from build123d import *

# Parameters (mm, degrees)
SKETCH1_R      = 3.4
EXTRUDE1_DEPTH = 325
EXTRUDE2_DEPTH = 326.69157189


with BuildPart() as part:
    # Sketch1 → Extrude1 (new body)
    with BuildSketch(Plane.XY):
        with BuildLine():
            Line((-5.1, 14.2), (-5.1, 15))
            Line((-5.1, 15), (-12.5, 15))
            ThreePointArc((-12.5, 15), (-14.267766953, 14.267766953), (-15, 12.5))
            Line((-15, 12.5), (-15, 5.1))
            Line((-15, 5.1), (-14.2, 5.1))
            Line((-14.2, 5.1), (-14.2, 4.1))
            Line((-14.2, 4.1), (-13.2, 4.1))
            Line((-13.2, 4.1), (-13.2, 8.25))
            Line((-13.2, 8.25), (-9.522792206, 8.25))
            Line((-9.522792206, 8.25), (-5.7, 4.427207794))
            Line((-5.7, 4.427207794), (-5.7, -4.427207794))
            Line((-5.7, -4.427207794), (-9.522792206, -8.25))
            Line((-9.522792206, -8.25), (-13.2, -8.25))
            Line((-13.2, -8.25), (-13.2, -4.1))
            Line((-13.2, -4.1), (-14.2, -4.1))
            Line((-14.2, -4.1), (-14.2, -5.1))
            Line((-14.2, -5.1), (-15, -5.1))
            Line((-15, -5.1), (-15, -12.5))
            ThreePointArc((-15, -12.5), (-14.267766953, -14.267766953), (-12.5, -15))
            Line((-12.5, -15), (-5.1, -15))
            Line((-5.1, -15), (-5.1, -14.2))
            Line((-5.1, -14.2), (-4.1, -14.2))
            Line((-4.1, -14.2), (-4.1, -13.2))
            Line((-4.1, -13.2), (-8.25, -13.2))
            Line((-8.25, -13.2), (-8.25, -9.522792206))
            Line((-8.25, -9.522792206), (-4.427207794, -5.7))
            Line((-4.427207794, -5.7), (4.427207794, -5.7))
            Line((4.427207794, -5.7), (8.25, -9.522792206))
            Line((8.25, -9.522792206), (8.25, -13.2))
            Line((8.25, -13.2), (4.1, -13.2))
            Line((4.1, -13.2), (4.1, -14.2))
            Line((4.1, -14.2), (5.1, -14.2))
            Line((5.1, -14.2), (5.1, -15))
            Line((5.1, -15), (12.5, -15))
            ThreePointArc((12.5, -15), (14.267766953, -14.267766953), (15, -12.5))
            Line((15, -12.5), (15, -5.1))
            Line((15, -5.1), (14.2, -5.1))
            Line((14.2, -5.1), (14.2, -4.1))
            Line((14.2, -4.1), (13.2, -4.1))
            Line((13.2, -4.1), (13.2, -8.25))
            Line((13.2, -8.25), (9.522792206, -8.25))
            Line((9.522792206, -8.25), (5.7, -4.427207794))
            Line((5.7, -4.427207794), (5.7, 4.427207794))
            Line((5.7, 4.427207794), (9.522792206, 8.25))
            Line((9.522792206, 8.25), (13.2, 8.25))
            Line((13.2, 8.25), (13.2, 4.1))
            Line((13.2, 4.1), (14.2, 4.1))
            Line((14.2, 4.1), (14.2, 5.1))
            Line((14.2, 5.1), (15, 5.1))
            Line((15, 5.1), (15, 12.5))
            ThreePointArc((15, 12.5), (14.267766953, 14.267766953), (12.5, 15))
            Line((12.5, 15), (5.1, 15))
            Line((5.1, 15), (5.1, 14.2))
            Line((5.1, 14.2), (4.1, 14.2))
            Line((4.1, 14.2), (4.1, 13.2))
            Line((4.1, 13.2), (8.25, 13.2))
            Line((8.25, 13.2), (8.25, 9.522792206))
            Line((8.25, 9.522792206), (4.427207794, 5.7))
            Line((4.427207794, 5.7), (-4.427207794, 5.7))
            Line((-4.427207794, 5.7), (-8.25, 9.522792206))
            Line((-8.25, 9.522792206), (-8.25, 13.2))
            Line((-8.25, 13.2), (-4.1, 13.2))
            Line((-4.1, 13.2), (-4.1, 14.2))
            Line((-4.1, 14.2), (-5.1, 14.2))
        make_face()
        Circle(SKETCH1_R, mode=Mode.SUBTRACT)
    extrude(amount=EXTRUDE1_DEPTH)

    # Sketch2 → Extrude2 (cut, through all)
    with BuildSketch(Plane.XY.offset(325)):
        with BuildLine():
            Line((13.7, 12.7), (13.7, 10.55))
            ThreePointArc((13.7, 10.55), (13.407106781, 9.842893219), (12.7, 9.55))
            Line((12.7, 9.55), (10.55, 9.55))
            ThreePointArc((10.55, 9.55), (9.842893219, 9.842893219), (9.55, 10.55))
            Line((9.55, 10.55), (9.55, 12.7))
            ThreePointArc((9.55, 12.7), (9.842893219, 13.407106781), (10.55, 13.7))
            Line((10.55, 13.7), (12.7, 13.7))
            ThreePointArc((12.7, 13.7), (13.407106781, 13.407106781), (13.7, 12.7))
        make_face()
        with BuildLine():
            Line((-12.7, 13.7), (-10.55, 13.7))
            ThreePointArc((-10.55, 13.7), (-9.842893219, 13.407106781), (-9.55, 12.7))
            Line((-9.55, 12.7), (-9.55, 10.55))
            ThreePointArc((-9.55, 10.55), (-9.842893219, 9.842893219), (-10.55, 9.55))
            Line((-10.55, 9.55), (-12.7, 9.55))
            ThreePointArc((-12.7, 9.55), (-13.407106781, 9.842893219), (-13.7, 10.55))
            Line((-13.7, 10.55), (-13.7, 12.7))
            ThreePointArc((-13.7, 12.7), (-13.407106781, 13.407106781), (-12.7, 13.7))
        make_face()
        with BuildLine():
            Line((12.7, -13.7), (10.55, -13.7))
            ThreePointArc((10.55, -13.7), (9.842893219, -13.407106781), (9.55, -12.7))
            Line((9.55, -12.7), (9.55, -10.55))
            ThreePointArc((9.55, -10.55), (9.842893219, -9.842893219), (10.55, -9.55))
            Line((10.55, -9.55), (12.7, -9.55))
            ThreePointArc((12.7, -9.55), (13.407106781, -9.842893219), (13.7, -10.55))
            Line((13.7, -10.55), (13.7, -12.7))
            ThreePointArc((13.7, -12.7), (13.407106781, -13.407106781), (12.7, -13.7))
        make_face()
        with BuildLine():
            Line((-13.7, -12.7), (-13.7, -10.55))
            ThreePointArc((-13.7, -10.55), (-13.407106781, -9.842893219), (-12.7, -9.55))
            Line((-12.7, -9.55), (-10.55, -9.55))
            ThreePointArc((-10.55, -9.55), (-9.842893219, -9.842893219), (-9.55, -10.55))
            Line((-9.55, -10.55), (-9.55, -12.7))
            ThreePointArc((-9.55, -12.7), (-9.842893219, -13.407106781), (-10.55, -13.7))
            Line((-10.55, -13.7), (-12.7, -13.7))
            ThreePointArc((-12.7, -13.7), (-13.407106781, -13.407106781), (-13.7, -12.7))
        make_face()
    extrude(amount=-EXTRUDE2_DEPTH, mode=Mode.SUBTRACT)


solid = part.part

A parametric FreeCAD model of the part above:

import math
import FreeCAD as App
import Part
import Sketcher
from FreeCAD import Vector

doc = App.newDocument("Part")
body = doc.addObject("PartDesign::Body", "Body")

# Sketch on XY plane
sketch1 = body.newObject("Sketcher::SketchObject", "Sketch")
sketch1.AttachmentSupport = (doc.getObject("XY_Plane"), [""])
sketch1.MapMode = "FlatFace"
sketch1.addGeometry(Part.LineSegment(Vector(-5.1, 14.2, 0), Vector(-5.1, 15, 0)), False)
sketch1.addGeometry(Part.LineSegment(Vector(-5.1, 15, 0), Vector(-12.5, 15, 0)), False)
sketch1.addGeometry(Part.ArcOfCircle(Part.Circle(Vector(-12.5, 12.5, 0), Vector(0, 0, 1), 2.5), math.radians(90), math.radians(180)), False)
sketch1.addGeometry(Part.LineSegment(Vector(-15, 12.5, 0), Vector(-15, 5.1, 0)), False)
sketch1.addGeometry(Part.LineSegment(Vector(-15, 5.1, 0), Vector(-14.2, 5.1, 0)), False)
sketch1.addGeometry(Part.LineSegment(Vector(-14.2, 5.1, 0), Vector(-14.2, 4.1, 0)), False)
sketch1.addGeometry(Part.LineSegment(Vector(-14.2, 4.1, 0), Vector(-13.2, 4.1, 0)), False)
sketch1.addGeometry(Part.LineSegment(Vector(-13.2, 4.1, 0), Vector(-13.2, 8.25, 0)), False)
sketch1.addGeometry(Part.LineSegment(Vector(-13.2, 8.25, 0), Vector(-9.522792, 8.25, 0)), False)
sketch1.addGeometry(Part.LineSegment(Vector(-9.522792, 8.25, 0), Vector(-5.7, 4.427208, 0)), False)
sketch1.addGeometry(Part.LineSegment(Vector(-5.7, 4.427208, 0), Vector(-5.7, -4.427208, 0)), False)
sketch1.addGeometry(Part.LineSegment(Vector(-5.7, -4.427208, 0), Vector(-9.522792, -8.25, 0)), False)
sketch1.addGeometry(Part.LineSegment(Vector(-9.522792, -8.25, 0), Vector(-13.2, -8.25, 0)), False)
sketch1.addGeometry(Part.LineSegment(Vector(-13.2, -8.25, 0), Vector(-13.2, -4.1, 0)), False)
sketch1.addGeometry(Part.LineSegment(Vector(-13.2, -4.1, 0), Vector(-14.2, -4.1, 0)), False)
sketch1.addGeometry(Part.LineSegment(Vector(-14.2, -4.1, 0), Vector(-14.2, -5.1, 0)), False)
sketch1.addGeometry(Part.LineSegment(Vector(-14.2, -5.1, 0), Vector(-15, -5.1, 0)), False)
sketch1.addGeometry(Part.LineSegment(Vector(-15, -5.1, 0), Vector(-15, -12.5, 0)), False)
sketch1.addGeometry(Part.ArcOfCircle(Part.Circle(Vector(-12.5, -12.5, 0), Vector(0, 0, 1), 2.5), math.radians(180), math.radians(270)), False)
sketch1.addGeometry(Part.LineSegment(Vector(-12.5, -15, 0), Vector(-5.1, -15, 0)), False)
sketch1.addGeometry(Part.LineSegment(Vector(-5.1, -15, 0), Vector(-5.1, -14.2, 0)), False)
sketch1.addGeometry(Part.LineSegment(Vector(-5.1, -14.2, 0), Vector(-4.1, -14.2, 0)), False)
sketch1.addGeometry(Part.LineSegment(Vector(-4.1, -14.2, 0), Vector(-4.1, -13.2, 0)), False)
sketch1.addGeometry(Part.LineSegment(Vector(-4.1, -13.2, 0), Vector(-8.25, -13.2, 0)), False)
sketch1.addGeometry(Part.LineSegment(Vector(-8.25, -13.2, 0), Vector(-8.25, -9.522792, 0)), False)
sketch1.addGeometry(Part.LineSegment(Vector(-8.25, -9.522792, 0), Vector(-4.427208, -5.7, 0)), False)
sketch1.addGeometry(Part.LineSegment(Vector(-4.427208, -5.7, 0), Vector(4.427208, -5.7, 0)), False)
sketch1.addGeometry(Part.LineSegment(Vector(4.427208, -5.7, 0), Vector(8.25, -9.522792, 0)), False)
sketch1.addGeometry(Part.LineSegment(Vector(8.25, -9.522792, 0), Vector(8.25, -13.2, 0)), False)
sketch1.addGeometry(Part.LineSegment(Vector(8.25, -13.2, 0), Vector(4.1, -13.2, 0)), False)
sketch1.addGeometry(Part.LineSegment(Vector(4.1, -13.2, 0), Vector(4.1, -14.2, 0)), False)
sketch1.addGeometry(Part.LineSegment(Vector(4.1, -14.2, 0), Vector(5.1, -14.2, 0)), False)
sketch1.addGeometry(Part.LineSegment(Vector(5.1, -14.2, 0), Vector(5.1, -15, 0)), False)
sketch1.addGeometry(Part.LineSegment(Vector(5.1, -15, 0), Vector(12.5, -15, 0)), False)
sketch1.addGeometry(Part.ArcOfCircle(Part.Circle(Vector(12.5, -12.5, 0), Vector(0, 0, 1), 2.5), math.radians(-90), math.radians(0)), False)
sketch1.addGeometry(Part.LineSegment(Vector(15, -12.5, 0), Vector(15, -5.1, 0)), False)
sketch1.addGeometry(Part.LineSegment(Vector(15, -5.1, 0), Vector(14.2, -5.1, 0)), False)
sketch1.addGeometry(Part.LineSegment(Vector(14.2, -5.1, 0), Vector(14.2, -4.1, 0)), False)
sketch1.addGeometry(Part.LineSegment(Vector(14.2, -4.1, 0), Vector(13.2, -4.1, 0)), False)
sketch1.addGeometry(Part.LineSegment(Vector(13.2, -4.1, 0), Vector(13.2, -8.25, 0)), False)
sketch1.addGeometry(Part.LineSegment(Vector(13.2, -8.25, 0), Vector(9.522792, -8.25, 0)), False)
sketch1.addGeometry(Part.LineSegment(Vector(9.522792, -8.25, 0), Vector(5.7, -4.427208, 0)), False)
sketch1.addGeometry(Part.LineSegment(Vector(5.7, -4.427208, 0), Vector(5.7, 4.427208, 0)), False)
sketch1.addGeometry(Part.LineSegment(Vector(5.7, 4.427208, 0), Vector(9.522792, 8.25, 0)), False)
sketch1.addGeometry(Part.LineSegment(Vector(9.522792, 8.25, 0), Vector(13.2, 8.25, 0)), False)
sketch1.addGeometry(Part.LineSegment(Vector(13.2, 8.25, 0), Vector(13.2, 4.1, 0)), False)
sketch1.addGeometry(Part.LineSegment(Vector(13.2, 4.1, 0), Vector(14.2, 4.1, 0)), False)
sketch1.addGeometry(Part.LineSegment(Vector(14.2, 4.1, 0), Vector(14.2, 5.1, 0)), False)
sketch1.addGeometry(Part.LineSegment(Vector(14.2, 5.1, 0), Vector(15, 5.1, 0)), False)
sketch1.addGeometry(Part.LineSegment(Vector(15, 5.1, 0), Vector(15, 12.5, 0)), False)
sketch1.addGeometry(Part.ArcOfCircle(Part.Circle(Vector(12.5, 12.5, 0), Vector(0, 0, 1), 2.5), math.radians(0), math.radians(90)), False)
sketch1.addGeometry(Part.LineSegment(Vector(12.5, 15, 0), Vector(5.1, 15, 0)), False)
sketch1.addGeometry(Part.LineSegment(Vector(5.1, 15, 0), Vector(5.1, 14.2, 0)), False)
sketch1.addGeometry(Part.LineSegment(Vector(5.1, 14.2, 0), Vector(4.1, 14.2, 0)), False)
sketch1.addGeometry(Part.LineSegment(Vector(4.1, 14.2, 0), Vector(4.1, 13.2, 0)), False)
sketch1.addGeometry(Part.LineSegment(Vector(4.1, 13.2, 0), Vector(8.25, 13.2, 0)), False)
sketch1.addGeometry(Part.LineSegment(Vector(8.25, 13.2, 0), Vector(8.25, 9.522792, 0)), False)
sketch1.addGeometry(Part.LineSegment(Vector(8.25, 9.522792, 0), Vector(4.427208, 5.7, 0)), False)
sketch1.addGeometry(Part.LineSegment(Vector(4.427208, 5.7, 0), Vector(-4.427208, 5.7, 0)), False)
sketch1.addGeometry(Part.LineSegment(Vector(-4.427208, 5.7, 0), Vector(-8.25, 9.522792, 0)), False)
sketch1.addGeometry(Part.LineSegment(Vector(-8.25, 9.522792, 0), Vector(-8.25, 13.2, 0)), False)
sketch1.addGeometry(Part.LineSegment(Vector(-8.25, 13.2, 0), Vector(-4.1, 13.2, 0)), False)
sketch1.addGeometry(Part.LineSegment(Vector(-4.1, 13.2, 0), Vector(-4.1, 14.2, 0)), False)
sketch1.addGeometry(Part.LineSegment(Vector(-4.1, 14.2, 0), Vector(-5.1, 14.2, 0)), False)
sketch1.addGeometry(Part.Circle(Vector(0, 0, 0), Vector(0, 0, 1), 3.4), False)
sketch1.addConstraint(Sketcher.Constraint("Coincident", 0, 2, 1, 1))
sketch1.addConstraint(Sketcher.Constraint("Tangent", 1, 2, 2, 1))
sketch1.addConstraint(Sketcher.Constraint("Tangent", 2, 2, 3, 1))
sketch1.addConstraint(Sketcher.Constraint("Coincident", 3, 2, 4, 1))
sketch1.addConstraint(Sketcher.Constraint("Coincident", 4, 2, 5, 1))
sketch1.addConstraint(Sketcher.Constraint("Coincident", 5, 2, 6, 1))
sketch1.addConstraint(Sketcher.Constraint("Coincident", 6, 2, 7, 1))
sketch1.addConstraint(Sketcher.Constraint("Coincident", 7, 2, 8, 1))
sketch1.addConstraint(Sketcher.Constraint("Coincident", 8, 2, 9, 1))
sketch1.addConstraint(Sketcher.Constraint("Coincident", 9, 2, 10, 1))
sketch1.addConstraint(Sketcher.Constraint("Coincident", 10, 2, 11, 1))
sketch1.addConstraint(Sketcher.Constraint("Coincident", 11, 2, 12, 1))
sketch1.addConstraint(Sketcher.Constraint("Coincident", 12, 2, 13, 1))
sketch1.addConstraint(Sketcher.Constraint("Coincident", 13, 2, 14, 1))
sketch1.addConstraint(Sketcher.Constraint("Coincident", 14, 2, 15, 1))
sketch1.addConstraint(Sketcher.Constraint("Coincident", 15, 2, 16, 1))
sketch1.addConstraint(Sketcher.Constraint("Coincident", 16, 2, 17, 1))
sketch1.addConstraint(Sketcher.Constraint("Tangent", 17, 2, 18, 1))
sketch1.addConstraint(Sketcher.Constraint("Tangent", 18, 2, 19, 1))
sketch1.addConstraint(Sketcher.Constraint("Coincident", 19, 2, 20, 1))
sketch1.addConstraint(Sketcher.Constraint("Coincident", 20, 2, 21, 1))
sketch1.addConstraint(Sketcher.Constraint("Coincident", 21, 2, 22, 1))
sketch1.addConstraint(Sketcher.Constraint("Coincident", 22, 2, 23, 1))
sketch1.addConstraint(Sketcher.Constraint("Coincident", 23, 2, 24, 1))
sketch1.addConstraint(Sketcher.Constraint("Coincident", 24, 2, 25, 1))
sketch1.addConstraint(Sketcher.Constraint("Coincident", 25, 2, 26, 1))
sketch1.addConstraint(Sketcher.Constraint("Coincident", 26, 2, 27, 1))
sketch1.addConstraint(Sketcher.Constraint("Coincident", 27, 2, 28, 1))
sketch1.addConstraint(Sketcher.Constraint("Coincident", 28, 2, 29, 1))
sketch1.addConstraint(Sketcher.Constraint("Coincident", 29, 2, 30, 1))
sketch1.addConstraint(Sketcher.Constraint("Coincident", 30, 2, 31, 1))
sketch1.addConstraint(Sketcher.Constraint("Coincident", 31, 2, 32, 1))
sketch1.addConstraint(Sketcher.Constraint("Coincident", 32, 2, 33, 1))
sketch1.addConstraint(Sketcher.Constraint("Tangent", 33, 2, 34, 1))
sketch1.addConstraint(Sketcher.Constraint("Tangent", 34, 2, 35, 1))
sketch1.addConstraint(Sketcher.Constraint("Coincident", 35, 2, 36, 1))
sketch1.addConstraint(Sketcher.Constraint("Coincident", 36, 2, 37, 1))
sketch1.addConstraint(Sketcher.Constraint("Coincident", 37, 2, 38, 1))
sketch1.addConstraint(Sketcher.Constraint("Coincident", 38, 2, 39, 1))
sketch1.addConstraint(Sketcher.Constraint("Coincident", 39, 2, 40, 1))
sketch1.addConstraint(Sketcher.Constraint("Coincident", 40, 2, 41, 1))
sketch1.addConstraint(Sketcher.Constraint("Coincident", 41, 2, 42, 1))
sketch1.addConstraint(Sketcher.Constraint("Coincident", 42, 2, 43, 1))
sketch1.addConstraint(Sketcher.Constraint("Coincident", 43, 2, 44, 1))
sketch1.addConstraint(Sketcher.Constraint("Coincident", 44, 2, 45, 1))
sketch1.addConstraint(Sketcher.Constraint("Coincident", 45, 2, 46, 1))
sketch1.addConstraint(Sketcher.Constraint("Coincident", 46, 2, 47, 1))
sketch1.addConstraint(Sketcher.Constraint("Coincident", 47, 2, 48, 1))
sketch1.addConstraint(Sketcher.Constraint("Coincident", 48, 2, 49, 1))
sketch1.addConstraint(Sketcher.Constraint("Tangent", 49, 2, 50, 1))
sketch1.addConstraint(Sketcher.Constraint("Tangent", 50, 2, 51, 1))
sketch1.addConstraint(Sketcher.Constraint("Coincident", 51, 2, 52, 1))
sketch1.addConstraint(Sketcher.Constraint("Coincident", 52, 2, 53, 1))
sketch1.addConstraint(Sketcher.Constraint("Coincident", 53, 2, 54, 1))
sketch1.addConstraint(Sketcher.Constraint("Coincident", 54, 2, 55, 1))
sketch1.addConstraint(Sketcher.Constraint("Coincident", 55, 2, 56, 1))
sketch1.addConstraint(Sketcher.Constraint("Coincident", 56, 2, 57, 1))
sketch1.addConstraint(Sketcher.Constraint("Coincident", 57, 2, 58, 1))
sketch1.addConstraint(Sketcher.Constraint("Coincident", 58, 2, 59, 1))
sketch1.addConstraint(Sketcher.Constraint("Coincident", 59, 2, 60, 1))
sketch1.addConstraint(Sketcher.Constraint("Coincident", 60, 2, 61, 1))
sketch1.addConstraint(Sketcher.Constraint("Coincident", 61, 2, 62, 1))
sketch1.addConstraint(Sketcher.Constraint("Coincident", 62, 2, 63, 1))
sketch1.addConstraint(Sketcher.Constraint("Coincident", 63, 2, 0, 1))
sketch1.addConstraint(Sketcher.Constraint("Vertical", 0))
sketch1.addConstraint(Sketcher.Constraint("Horizontal", 1))
sketch1.addConstraint(Sketcher.Constraint("Vertical", 3))
sketch1.addConstraint(Sketcher.Constraint("Horizontal", 4))
sketch1.addConstraint(Sketcher.Constraint("Vertical", 5))
sketch1.addConstraint(Sketcher.Constraint("Horizontal", 6))
sketch1.addConstraint(Sketcher.Constraint("Vertical", 7))
sketch1.addConstraint(Sketcher.Constraint("Horizontal", 8))
sketch1.addConstraint(Sketcher.Constraint("Vertical", 10))
sketch1.addConstraint(Sketcher.Constraint("Horizontal", 12))
sketch1.addConstraint(Sketcher.Constraint("Vertical", 13))
sketch1.addConstraint(Sketcher.Constraint("Horizontal", 14))
sketch1.addConstraint(Sketcher.Constraint("Vertical", 15))
sketch1.addConstraint(Sketcher.Constraint("Horizontal", 16))
sketch1.addConstraint(Sketcher.Constraint("Vertical", 17))
sketch1.addConstraint(Sketcher.Constraint("Horizontal", 19))
sketch1.addConstraint(Sketcher.Constraint("Vertical", 20))
sketch1.addConstraint(Sketcher.Constraint("Horizontal", 21))
sketch1.addConstraint(Sketcher.Constraint("Vertical", 22))
sketch1.addConstraint(Sketcher.Constraint("Horizontal", 23))
sketch1.addConstraint(Sketcher.Constraint("Vertical", 24))
sketch1.addConstraint(Sketcher.Constraint("Horizontal", 26))
sketch1.addConstraint(Sketcher.Constraint("Vertical", 28))
sketch1.addConstraint(Sketcher.Constraint("Horizontal", 29))
sketch1.addConstraint(Sketcher.Constraint("Vertical", 30))
sketch1.addConstraint(Sketcher.Constraint("Horizontal", 31))
sketch1.addConstraint(Sketcher.Constraint("Vertical", 32))
sketch1.addConstraint(Sketcher.Constraint("Horizontal", 33))
sketch1.addConstraint(Sketcher.Constraint("Vertical", 35))
sketch1.addConstraint(Sketcher.Constraint("Horizontal", 36))
sketch1.addConstraint(Sketcher.Constraint("Vertical", 37))
sketch1.addConstraint(Sketcher.Constraint("Horizontal", 38))
sketch1.addConstraint(Sketcher.Constraint("Vertical", 39))
sketch1.addConstraint(Sketcher.Constraint("Horizontal", 40))
sketch1.addConstraint(Sketcher.Constraint("Vertical", 42))
sketch1.addConstraint(Sketcher.Constraint("Horizontal", 44))
sketch1.addConstraint(Sketcher.Constraint("Vertical", 45))
sketch1.addConstraint(Sketcher.Constraint("Horizontal", 46))
sketch1.addConstraint(Sketcher.Constraint("Vertical", 47))
sketch1.addConstraint(Sketcher.Constraint("Horizontal", 48))
sketch1.addConstraint(Sketcher.Constraint("Vertical", 49))
sketch1.addConstraint(Sketcher.Constraint("Horizontal", 51))
sketch1.addConstraint(Sketcher.Constraint("Vertical", 52))
sketch1.addConstraint(Sketcher.Constraint("Horizontal", 53))
sketch1.addConstraint(Sketcher.Constraint("Vertical", 54))
sketch1.addConstraint(Sketcher.Constraint("Horizontal", 55))
sketch1.addConstraint(Sketcher.Constraint("Vertical", 56))
sketch1.addConstraint(Sketcher.Constraint("Horizontal", 58))
sketch1.addConstraint(Sketcher.Constraint("Vertical", 60))
sketch1.addConstraint(Sketcher.Constraint("Horizontal", 61))
sketch1.addConstraint(Sketcher.Constraint("Vertical", 62))
sketch1.addConstraint(Sketcher.Constraint("Horizontal", 63))
sketch1.addConstraint(Sketcher.Constraint("Coincident", 64, 3, -1, 1))
sketch1.addConstraint(Sketcher.Constraint("Equal", 2, 18))
sketch1.addConstraint(Sketcher.Constraint("Equal", 18, 34))
sketch1.addConstraint(Sketcher.Constraint("Equal", 34, 50))
sketch1.addConstraint(Sketcher.Constraint("Symmetric", 2, 3, 34, 3, -1, 1))
sketch1.addConstraint(Sketcher.Constraint("Symmetric", 18, 3, 50, 3, -1, 1))
sketch1.addConstraint(Sketcher.Constraint("Symmetric", 4, 2, 36, 2, -1, 1))
sketch1.addConstraint(Sketcher.Constraint("Symmetric", 6, 2, 38, 2, -1, 1))
sketch1.addConstraint(Sketcher.Constraint("Symmetric", 8, 2, 40, 2, -1, 1))
sketch1.addConstraint(Sketcher.Constraint("Symmetric", 9, 2, 41, 2, -1, 1))
sketch1.addConstraint(Sketcher.Constraint("Symmetric", 11, 2, 43, 2, -1, 1))
sketch1.addConstraint(Sketcher.Constraint("Symmetric", 13, 2, 45, 2, -1, 1))
sketch1.addConstraint(Sketcher.Constraint("Symmetric", 15, 2, 47, 2, -1, 1))
sketch1.addConstraint(Sketcher.Constraint("Symmetric", 20, 2, 52, 2, -1, 1))
sketch1.addConstraint(Sketcher.Constraint("Symmetric", 22, 2, 54, 2, -1, 1))
sketch1.addConstraint(Sketcher.Constraint("Symmetric", 24, 2, 56, 2, -1, 1))
sketch1.addConstraint(Sketcher.Constraint("Symmetric", 25, 2, 57, 2, -1, 1))
sketch1.addConstraint(Sketcher.Constraint("Symmetric", 27, 2, 59, 2, -1, 1))
sketch1.addConstraint(Sketcher.Constraint("Symmetric", 29, 2, 61, 2, -1, 1))
sketch1.addConstraint(Sketcher.Constraint("Symmetric", 31, 2, 63, 2, -1, 1))
sketch1.addConstraint(Sketcher.Constraint("Symmetric", 18, 3, 34, 3, -2))
sketch1.addConstraint(Sketcher.Constraint("Symmetric", 24, 2, 27, 2, -2))
sketch1.addConstraint(Sketcher.Constraint("Symmetric", 22, 2, 29, 2, -2))
sketch1.addConstraint(Sketcher.Constraint("Symmetric", 20, 2, 31, 2, -2))
sketch1.addConstraint(Sketcher.Constraint("Symmetric", 15, 2, 36, 2, -2))
sketch1.addConstraint(Sketcher.Constraint("Symmetric", 13, 2, 38, 2, -2))
sketch1.addConstraint(Sketcher.Constraint("Symmetric", 11, 2, 40, 2, -2))
sketch1.addConstraint(Sketcher.Constraint("Perpendicular", 9, 11))
sketch1.addConstraint(Sketcher.Constraint("Parallel", 11, 25))
sketch1.addConstraint(Sketcher.Constraint("Perpendicular", 25, 27))
sketch1.addConstraint(Sketcher.Constraint("Perpendicular", 41, 43))
sketch1.addConstraint(Sketcher.Constraint("Perpendicular", 57, 59))
sketch1.addConstraint(Sketcher.Constraint("Horizontal", 10, 2, 41, 2))
sketch1.addConstraint(Sketcher.Constraint("Equal", 14, 21))
sketch1.addConstraint(Sketcher.Constraint("Equal", 48, 0))
sketch1.addConstraint(Sketcher.Constraint("Equal", 51, 3))
sketch1.addConstraint(Sketcher.Constraint("Equal", 63, 5))
sketch1.addConstraint(Sketcher.Constraint("Equal", 61, 7))
sketch1.addConstraint(Sketcher.Constraint("Equal", 58, 10))
sketch1.addConstraint(Sketcher.Constraint("Equal", 15, 22))
sketch1.addConstraint(Sketcher.Constraint("Equal", 44, 24))
sketch1.addConstraint(Sketcher.Constraint("Equal", 11, 25))
sketch1.addConstraint(Sketcher.Constraint("Diameter", 64, 6.8))
sketch1.addConstraint(Sketcher.Constraint("Radius", 2, 2.5))
sketch1.addConstraint(Sketcher.Constraint("DistanceX", 6, 1, 6, 2, 1.0))
sketch1.addConstraint(Sketcher.Constraint("DistanceX", 1, 2, 1, 1, 7.4))
sketch1.addConstraint(Sketcher.Constraint("DistanceX", 4, 1, 4, 2, 0.8))
sketch1.addConstraint(Sketcher.Constraint("DistanceY", -1, 1, 0, 2, 15.0))
sketch1.addConstraint(Sketcher.Constraint("DistanceX", 23, 2, 23, 1, 4.15))
sketch1.addConstraint(Sketcher.Constraint("DistanceX", 9, 2, -1, 1, 5.7))
sketch1.addConstraint(Sketcher.Constraint("DistanceX", 8, 1, 8, 2, 3.677208))
pad1 = body.newObject("PartDesign::Pad", "Pad")
pad1.Profile = sketch1
pad1.Length = 325

# Sketch on XY plane
sketch2 = body.newObject("Sketcher::SketchObject", "Sketch001")
sketch2.AttachmentSupport = (doc.getObject("XY_Plane"), [""])
sketch2.MapMode = "FlatFace"
sketch2.AttachmentOffset = App.Placement(Vector(0, 0, 325), App.Rotation())
sketch2.addGeometry(Part.LineSegment(Vector(13.7, 10.55, 0), Vector(13.7, 12.7, 0)), False)
sketch2.addGeometry(Part.ArcOfCircle(Part.Circle(Vector(12.7, 12.7, 0), Vector(0, 0, 1), 1), math.radians(0), math.radians(90)), False)
sketch2.addGeometry(Part.LineSegment(Vector(12.7, 13.7, 0), Vector(10.55, 13.7, 0)), False)
sketch2.addGeometry(Part.ArcOfCircle(Part.Circle(Vector(10.55, 12.7, 0), Vector(0, 0, 1), 1), math.radians(90), math.radians(180)), False)
sketch2.addGeometry(Part.LineSegment(Vector(9.55, 12.7, 0), Vector(9.55, 10.55, 0)), False)
sketch2.addGeometry(Part.ArcOfCircle(Part.Circle(Vector(10.55, 10.55, 0), Vector(0, 0, 1), 1), math.radians(-180), math.radians(-90)), False)
sketch2.addGeometry(Part.LineSegment(Vector(10.55, 9.55, 0), Vector(12.7, 9.55, 0)), False)
sketch2.addGeometry(Part.ArcOfCircle(Part.Circle(Vector(12.7, 10.55, 0), Vector(0, 0, 1), 1), math.radians(-90), math.radians(0)), False)
sketch2.addGeometry(Part.LineSegment(Vector(-10.55, 13.7, 0), Vector(-12.7, 13.7, 0)), False)
sketch2.addGeometry(Part.ArcOfCircle(Part.Circle(Vector(-12.7, 12.7, 0), Vector(0, 0, 1), 1), math.radians(90), math.radians(180)), False)
sketch2.addGeometry(Part.LineSegment(Vector(-13.7, 12.7, 0), Vector(-13.7, 10.55, 0)), False)
sketch2.addGeometry(Part.ArcOfCircle(Part.Circle(Vector(-12.7, 10.55, 0), Vector(0, 0, 1), 1), math.radians(-180), math.radians(-90)), False)
sketch2.addGeometry(Part.LineSegment(Vector(-12.7, 9.55, 0), Vector(-10.55, 9.55, 0)), False)
sketch2.addGeometry(Part.ArcOfCircle(Part.Circle(Vector(-10.55, 10.55, 0), Vector(0, 0, 1), 1), math.radians(-90), math.radians(0)), False)
sketch2.addGeometry(Part.LineSegment(Vector(-9.55, 10.55, 0), Vector(-9.55, 12.7, 0)), False)
sketch2.addGeometry(Part.ArcOfCircle(Part.Circle(Vector(-10.55, 12.7, 0), Vector(0, 0, 1), 1), math.radians(0), math.radians(90)), False)
sketch2.addGeometry(Part.LineSegment(Vector(10.55, -13.7, 0), Vector(12.7, -13.7, 0)), False)
sketch2.addGeometry(Part.ArcOfCircle(Part.Circle(Vector(12.7, -12.7, 0), Vector(0, 0, 1), 1), math.radians(-90), math.radians(0)), False)
sketch2.addGeometry(Part.LineSegment(Vector(13.7, -12.7, 0), Vector(13.7, -10.55, 0)), False)
sketch2.addGeometry(Part.ArcOfCircle(Part.Circle(Vector(12.7, -10.55, 0), Vector(0, 0, 1), 1), math.radians(0), math.radians(90)), False)
sketch2.addGeometry(Part.LineSegment(Vector(12.7, -9.55, 0), Vector(10.55, -9.55, 0)), False)
sketch2.addGeometry(Part.ArcOfCircle(Part.Circle(Vector(10.55, -10.55, 0), Vector(0, 0, 1), 1), math.radians(90), math.radians(180)), False)
sketch2.addGeometry(Part.LineSegment(Vector(9.55, -10.55, 0), Vector(9.55, -12.7, 0)), False)
sketch2.addGeometry(Part.ArcOfCircle(Part.Circle(Vector(10.55, -12.7, 0), Vector(0, 0, 1), 1), math.radians(-180), math.radians(-90)), False)
sketch2.addGeometry(Part.LineSegment(Vector(-13.7, -10.55, 0), Vector(-13.7, -12.7, 0)), False)
sketch2.addGeometry(Part.ArcOfCircle(Part.Circle(Vector(-12.7, -12.7, 0), Vector(0, 0, 1), 1), math.radians(-180), math.radians(-90)), False)
sketch2.addGeometry(Part.LineSegment(Vector(-12.7, -13.7, 0), Vector(-10.55, -13.7, 0)), False)
sketch2.addGeometry(Part.ArcOfCircle(Part.Circle(Vector(-10.55, -12.7, 0), Vector(0, 0, 1), 1), math.radians(-90), math.radians(0)), False)
sketch2.addGeometry(Part.LineSegment(Vector(-9.55, -12.7, 0), Vector(-9.55, -10.55, 0)), False)
sketch2.addGeometry(Part.ArcOfCircle(Part.Circle(Vector(-10.55, -10.55, 0), Vector(0, 0, 1), 1), math.radians(0), math.radians(90)), False)
sketch2.addGeometry(Part.LineSegment(Vector(-10.55, -9.55, 0), Vector(-12.7, -9.55, 0)), False)
sketch2.addGeometry(Part.ArcOfCircle(Part.Circle(Vector(-12.7, -10.55, 0), Vector(0, 0, 1), 1), math.radians(90), math.radians(180)), False)
sketch2.addConstraint(Sketcher.Constraint("Tangent", 0, 2, 1, 1))
sketch2.addConstraint(Sketcher.Constraint("Tangent", 1, 2, 2, 1))
sketch2.addConstraint(Sketcher.Constraint("Tangent", 2, 2, 3, 1))
sketch2.addConstraint(Sketcher.Constraint("Tangent", 3, 2, 4, 1))
sketch2.addConstraint(Sketcher.Constraint("Tangent", 4, 2, 5, 1))
sketch2.addConstraint(Sketcher.Constraint("Tangent", 5, 2, 6, 1))
sketch2.addConstraint(Sketcher.Constraint("Tangent", 6, 2, 7, 1))
sketch2.addConstraint(Sketcher.Constraint("Tangent", 7, 2, 0, 1))
sketch2.addConstraint(Sketcher.Constraint("Tangent", 8, 2, 9, 1))
sketch2.addConstraint(Sketcher.Constraint("Tangent", 9, 2, 10, 1))
sketch2.addConstraint(Sketcher.Constraint("Tangent", 10, 2, 11, 1))
sketch2.addConstraint(Sketcher.Constraint("Tangent", 11, 2, 12, 1))
sketch2.addConstraint(Sketcher.Constraint("Tangent", 12, 2, 13, 1))
sketch2.addConstraint(Sketcher.Constraint("Tangent", 13, 2, 14, 1))
sketch2.addConstraint(Sketcher.Constraint("Tangent", 14, 2, 15, 1))
sketch2.addConstraint(Sketcher.Constraint("Tangent", 15, 2, 8, 1))
sketch2.addConstraint(Sketcher.Constraint("Tangent", 16, 2, 17, 1))
sketch2.addConstraint(Sketcher.Constraint("Tangent", 17, 2, 18, 1))
sketch2.addConstraint(Sketcher.Constraint("Tangent", 18, 2, 19, 1))
sketch2.addConstraint(Sketcher.Constraint("Tangent", 19, 2, 20, 1))
sketch2.addConstraint(Sketcher.Constraint("Tangent", 20, 2, 21, 1))
sketch2.addConstraint(Sketcher.Constraint("Tangent", 21, 2, 22, 1))
sketch2.addConstraint(Sketcher.Constraint("Tangent", 22, 2, 23, 1))
sketch2.addConstraint(Sketcher.Constraint("Tangent", 23, 2, 16, 1))
sketch2.addConstraint(Sketcher.Constraint("Tangent", 24, 2, 25, 1))
sketch2.addConstraint(Sketcher.Constraint("Tangent", 25, 2, 26, 1))
sketch2.addConstraint(Sketcher.Constraint("Tangent", 26, 2, 27, 1))
sketch2.addConstraint(Sketcher.Constraint("Tangent", 27, 2, 28, 1))
sketch2.addConstraint(Sketcher.Constraint("Tangent", 28, 2, 29, 1))
sketch2.addConstraint(Sketcher.Constraint("Tangent", 29, 2, 30, 1))
sketch2.addConstraint(Sketcher.Constraint("Tangent", 30, 2, 31, 1))
sketch2.addConstraint(Sketcher.Constraint("Tangent", 31, 2, 24, 1))
sketch2.addConstraint(Sketcher.Constraint("Vertical", 0))
sketch2.addConstraint(Sketcher.Constraint("Horizontal", 2))
sketch2.addConstraint(Sketcher.Constraint("Vertical", 4))
sketch2.addConstraint(Sketcher.Constraint("Horizontal", 6))
sketch2.addConstraint(Sketcher.Constraint("Horizontal", 8))
sketch2.addConstraint(Sketcher.Constraint("Vertical", 10))
sketch2.addConstraint(Sketcher.Constraint("Horizontal", 12))
sketch2.addConstraint(Sketcher.Constraint("Vertical", 14))
sketch2.addConstraint(Sketcher.Constraint("Horizontal", 16))
sketch2.addConstraint(Sketcher.Constraint("Vertical", 18))
sketch2.addConstraint(Sketcher.Constraint("Horizontal", 20))
sketch2.addConstraint(Sketcher.Constraint("Vertical", 22))
sketch2.addConstraint(Sketcher.Constraint("Vertical", 24))
sketch2.addConstraint(Sketcher.Constraint("Horizontal", 26))
sketch2.addConstraint(Sketcher.Constraint("Vertical", 28))
sketch2.addConstraint(Sketcher.Constraint("Horizontal", 30))
sketch2.addConstraint(Sketcher.Constraint("Equal", 1, 3))
sketch2.addConstraint(Sketcher.Constraint("Equal", 3, 5))
sketch2.addConstraint(Sketcher.Constraint("Equal", 5, 7))
sketch2.addConstraint(Sketcher.Constraint("Equal", 7, 9))
sketch2.addConstraint(Sketcher.Constraint("Equal", 9, 11))
sketch2.addConstraint(Sketcher.Constraint("Equal", 11, 13))
sketch2.addConstraint(Sketcher.Constraint("Equal", 13, 15))
sketch2.addConstraint(Sketcher.Constraint("Equal", 15, 17))
sketch2.addConstraint(Sketcher.Constraint("Equal", 17, 19))
sketch2.addConstraint(Sketcher.Constraint("Equal", 19, 21))
sketch2.addConstraint(Sketcher.Constraint("Equal", 21, 23))
sketch2.addConstraint(Sketcher.Constraint("Equal", 23, 25))
sketch2.addConstraint(Sketcher.Constraint("Equal", 25, 27))
sketch2.addConstraint(Sketcher.Constraint("Equal", 27, 29))
sketch2.addConstraint(Sketcher.Constraint("Equal", 29, 31))
sketch2.addConstraint(Sketcher.Constraint("Symmetric", 9, 3, 17, 3, -1, 1))
sketch2.addConstraint(Sketcher.Constraint("Symmetric", 13, 3, 21, 3, -1, 1))
sketch2.addConstraint(Sketcher.Constraint("Symmetric", 1, 3, 25, 3, -1, 1))
sketch2.addConstraint(Sketcher.Constraint("Symmetric", 5, 3, 29, 3, -1, 1))
sketch2.addConstraint(Sketcher.Constraint("Symmetric", 1, 3, 9, 3, -2))
sketch2.addConstraint(Sketcher.Constraint("Symmetric", 5, 3, 13, 3, -2))
sketch2.addConstraint(Sketcher.Constraint("Equal", 30, 0))
sketch2.addConstraint(Sketcher.Constraint("Radius", 1, 1.0))
sketch2.addConstraint(Sketcher.Constraint("DistanceX", 2, 2, 2, 1, 2.15))
sketch2.addConstraint(Sketcher.Constraint("DistanceX", -1, 1, 1, 3, 12.7))
sketch2.addConstraint(Sketcher.Constraint("DistanceY", -1, 1, 1, 3, 12.7))
pocket1 = body.newObject("PartDesign::Pocket", "Pocket")
pocket1.Profile = sketch2
pocket1.Type = "ThroughAll"

doc.recompute()
